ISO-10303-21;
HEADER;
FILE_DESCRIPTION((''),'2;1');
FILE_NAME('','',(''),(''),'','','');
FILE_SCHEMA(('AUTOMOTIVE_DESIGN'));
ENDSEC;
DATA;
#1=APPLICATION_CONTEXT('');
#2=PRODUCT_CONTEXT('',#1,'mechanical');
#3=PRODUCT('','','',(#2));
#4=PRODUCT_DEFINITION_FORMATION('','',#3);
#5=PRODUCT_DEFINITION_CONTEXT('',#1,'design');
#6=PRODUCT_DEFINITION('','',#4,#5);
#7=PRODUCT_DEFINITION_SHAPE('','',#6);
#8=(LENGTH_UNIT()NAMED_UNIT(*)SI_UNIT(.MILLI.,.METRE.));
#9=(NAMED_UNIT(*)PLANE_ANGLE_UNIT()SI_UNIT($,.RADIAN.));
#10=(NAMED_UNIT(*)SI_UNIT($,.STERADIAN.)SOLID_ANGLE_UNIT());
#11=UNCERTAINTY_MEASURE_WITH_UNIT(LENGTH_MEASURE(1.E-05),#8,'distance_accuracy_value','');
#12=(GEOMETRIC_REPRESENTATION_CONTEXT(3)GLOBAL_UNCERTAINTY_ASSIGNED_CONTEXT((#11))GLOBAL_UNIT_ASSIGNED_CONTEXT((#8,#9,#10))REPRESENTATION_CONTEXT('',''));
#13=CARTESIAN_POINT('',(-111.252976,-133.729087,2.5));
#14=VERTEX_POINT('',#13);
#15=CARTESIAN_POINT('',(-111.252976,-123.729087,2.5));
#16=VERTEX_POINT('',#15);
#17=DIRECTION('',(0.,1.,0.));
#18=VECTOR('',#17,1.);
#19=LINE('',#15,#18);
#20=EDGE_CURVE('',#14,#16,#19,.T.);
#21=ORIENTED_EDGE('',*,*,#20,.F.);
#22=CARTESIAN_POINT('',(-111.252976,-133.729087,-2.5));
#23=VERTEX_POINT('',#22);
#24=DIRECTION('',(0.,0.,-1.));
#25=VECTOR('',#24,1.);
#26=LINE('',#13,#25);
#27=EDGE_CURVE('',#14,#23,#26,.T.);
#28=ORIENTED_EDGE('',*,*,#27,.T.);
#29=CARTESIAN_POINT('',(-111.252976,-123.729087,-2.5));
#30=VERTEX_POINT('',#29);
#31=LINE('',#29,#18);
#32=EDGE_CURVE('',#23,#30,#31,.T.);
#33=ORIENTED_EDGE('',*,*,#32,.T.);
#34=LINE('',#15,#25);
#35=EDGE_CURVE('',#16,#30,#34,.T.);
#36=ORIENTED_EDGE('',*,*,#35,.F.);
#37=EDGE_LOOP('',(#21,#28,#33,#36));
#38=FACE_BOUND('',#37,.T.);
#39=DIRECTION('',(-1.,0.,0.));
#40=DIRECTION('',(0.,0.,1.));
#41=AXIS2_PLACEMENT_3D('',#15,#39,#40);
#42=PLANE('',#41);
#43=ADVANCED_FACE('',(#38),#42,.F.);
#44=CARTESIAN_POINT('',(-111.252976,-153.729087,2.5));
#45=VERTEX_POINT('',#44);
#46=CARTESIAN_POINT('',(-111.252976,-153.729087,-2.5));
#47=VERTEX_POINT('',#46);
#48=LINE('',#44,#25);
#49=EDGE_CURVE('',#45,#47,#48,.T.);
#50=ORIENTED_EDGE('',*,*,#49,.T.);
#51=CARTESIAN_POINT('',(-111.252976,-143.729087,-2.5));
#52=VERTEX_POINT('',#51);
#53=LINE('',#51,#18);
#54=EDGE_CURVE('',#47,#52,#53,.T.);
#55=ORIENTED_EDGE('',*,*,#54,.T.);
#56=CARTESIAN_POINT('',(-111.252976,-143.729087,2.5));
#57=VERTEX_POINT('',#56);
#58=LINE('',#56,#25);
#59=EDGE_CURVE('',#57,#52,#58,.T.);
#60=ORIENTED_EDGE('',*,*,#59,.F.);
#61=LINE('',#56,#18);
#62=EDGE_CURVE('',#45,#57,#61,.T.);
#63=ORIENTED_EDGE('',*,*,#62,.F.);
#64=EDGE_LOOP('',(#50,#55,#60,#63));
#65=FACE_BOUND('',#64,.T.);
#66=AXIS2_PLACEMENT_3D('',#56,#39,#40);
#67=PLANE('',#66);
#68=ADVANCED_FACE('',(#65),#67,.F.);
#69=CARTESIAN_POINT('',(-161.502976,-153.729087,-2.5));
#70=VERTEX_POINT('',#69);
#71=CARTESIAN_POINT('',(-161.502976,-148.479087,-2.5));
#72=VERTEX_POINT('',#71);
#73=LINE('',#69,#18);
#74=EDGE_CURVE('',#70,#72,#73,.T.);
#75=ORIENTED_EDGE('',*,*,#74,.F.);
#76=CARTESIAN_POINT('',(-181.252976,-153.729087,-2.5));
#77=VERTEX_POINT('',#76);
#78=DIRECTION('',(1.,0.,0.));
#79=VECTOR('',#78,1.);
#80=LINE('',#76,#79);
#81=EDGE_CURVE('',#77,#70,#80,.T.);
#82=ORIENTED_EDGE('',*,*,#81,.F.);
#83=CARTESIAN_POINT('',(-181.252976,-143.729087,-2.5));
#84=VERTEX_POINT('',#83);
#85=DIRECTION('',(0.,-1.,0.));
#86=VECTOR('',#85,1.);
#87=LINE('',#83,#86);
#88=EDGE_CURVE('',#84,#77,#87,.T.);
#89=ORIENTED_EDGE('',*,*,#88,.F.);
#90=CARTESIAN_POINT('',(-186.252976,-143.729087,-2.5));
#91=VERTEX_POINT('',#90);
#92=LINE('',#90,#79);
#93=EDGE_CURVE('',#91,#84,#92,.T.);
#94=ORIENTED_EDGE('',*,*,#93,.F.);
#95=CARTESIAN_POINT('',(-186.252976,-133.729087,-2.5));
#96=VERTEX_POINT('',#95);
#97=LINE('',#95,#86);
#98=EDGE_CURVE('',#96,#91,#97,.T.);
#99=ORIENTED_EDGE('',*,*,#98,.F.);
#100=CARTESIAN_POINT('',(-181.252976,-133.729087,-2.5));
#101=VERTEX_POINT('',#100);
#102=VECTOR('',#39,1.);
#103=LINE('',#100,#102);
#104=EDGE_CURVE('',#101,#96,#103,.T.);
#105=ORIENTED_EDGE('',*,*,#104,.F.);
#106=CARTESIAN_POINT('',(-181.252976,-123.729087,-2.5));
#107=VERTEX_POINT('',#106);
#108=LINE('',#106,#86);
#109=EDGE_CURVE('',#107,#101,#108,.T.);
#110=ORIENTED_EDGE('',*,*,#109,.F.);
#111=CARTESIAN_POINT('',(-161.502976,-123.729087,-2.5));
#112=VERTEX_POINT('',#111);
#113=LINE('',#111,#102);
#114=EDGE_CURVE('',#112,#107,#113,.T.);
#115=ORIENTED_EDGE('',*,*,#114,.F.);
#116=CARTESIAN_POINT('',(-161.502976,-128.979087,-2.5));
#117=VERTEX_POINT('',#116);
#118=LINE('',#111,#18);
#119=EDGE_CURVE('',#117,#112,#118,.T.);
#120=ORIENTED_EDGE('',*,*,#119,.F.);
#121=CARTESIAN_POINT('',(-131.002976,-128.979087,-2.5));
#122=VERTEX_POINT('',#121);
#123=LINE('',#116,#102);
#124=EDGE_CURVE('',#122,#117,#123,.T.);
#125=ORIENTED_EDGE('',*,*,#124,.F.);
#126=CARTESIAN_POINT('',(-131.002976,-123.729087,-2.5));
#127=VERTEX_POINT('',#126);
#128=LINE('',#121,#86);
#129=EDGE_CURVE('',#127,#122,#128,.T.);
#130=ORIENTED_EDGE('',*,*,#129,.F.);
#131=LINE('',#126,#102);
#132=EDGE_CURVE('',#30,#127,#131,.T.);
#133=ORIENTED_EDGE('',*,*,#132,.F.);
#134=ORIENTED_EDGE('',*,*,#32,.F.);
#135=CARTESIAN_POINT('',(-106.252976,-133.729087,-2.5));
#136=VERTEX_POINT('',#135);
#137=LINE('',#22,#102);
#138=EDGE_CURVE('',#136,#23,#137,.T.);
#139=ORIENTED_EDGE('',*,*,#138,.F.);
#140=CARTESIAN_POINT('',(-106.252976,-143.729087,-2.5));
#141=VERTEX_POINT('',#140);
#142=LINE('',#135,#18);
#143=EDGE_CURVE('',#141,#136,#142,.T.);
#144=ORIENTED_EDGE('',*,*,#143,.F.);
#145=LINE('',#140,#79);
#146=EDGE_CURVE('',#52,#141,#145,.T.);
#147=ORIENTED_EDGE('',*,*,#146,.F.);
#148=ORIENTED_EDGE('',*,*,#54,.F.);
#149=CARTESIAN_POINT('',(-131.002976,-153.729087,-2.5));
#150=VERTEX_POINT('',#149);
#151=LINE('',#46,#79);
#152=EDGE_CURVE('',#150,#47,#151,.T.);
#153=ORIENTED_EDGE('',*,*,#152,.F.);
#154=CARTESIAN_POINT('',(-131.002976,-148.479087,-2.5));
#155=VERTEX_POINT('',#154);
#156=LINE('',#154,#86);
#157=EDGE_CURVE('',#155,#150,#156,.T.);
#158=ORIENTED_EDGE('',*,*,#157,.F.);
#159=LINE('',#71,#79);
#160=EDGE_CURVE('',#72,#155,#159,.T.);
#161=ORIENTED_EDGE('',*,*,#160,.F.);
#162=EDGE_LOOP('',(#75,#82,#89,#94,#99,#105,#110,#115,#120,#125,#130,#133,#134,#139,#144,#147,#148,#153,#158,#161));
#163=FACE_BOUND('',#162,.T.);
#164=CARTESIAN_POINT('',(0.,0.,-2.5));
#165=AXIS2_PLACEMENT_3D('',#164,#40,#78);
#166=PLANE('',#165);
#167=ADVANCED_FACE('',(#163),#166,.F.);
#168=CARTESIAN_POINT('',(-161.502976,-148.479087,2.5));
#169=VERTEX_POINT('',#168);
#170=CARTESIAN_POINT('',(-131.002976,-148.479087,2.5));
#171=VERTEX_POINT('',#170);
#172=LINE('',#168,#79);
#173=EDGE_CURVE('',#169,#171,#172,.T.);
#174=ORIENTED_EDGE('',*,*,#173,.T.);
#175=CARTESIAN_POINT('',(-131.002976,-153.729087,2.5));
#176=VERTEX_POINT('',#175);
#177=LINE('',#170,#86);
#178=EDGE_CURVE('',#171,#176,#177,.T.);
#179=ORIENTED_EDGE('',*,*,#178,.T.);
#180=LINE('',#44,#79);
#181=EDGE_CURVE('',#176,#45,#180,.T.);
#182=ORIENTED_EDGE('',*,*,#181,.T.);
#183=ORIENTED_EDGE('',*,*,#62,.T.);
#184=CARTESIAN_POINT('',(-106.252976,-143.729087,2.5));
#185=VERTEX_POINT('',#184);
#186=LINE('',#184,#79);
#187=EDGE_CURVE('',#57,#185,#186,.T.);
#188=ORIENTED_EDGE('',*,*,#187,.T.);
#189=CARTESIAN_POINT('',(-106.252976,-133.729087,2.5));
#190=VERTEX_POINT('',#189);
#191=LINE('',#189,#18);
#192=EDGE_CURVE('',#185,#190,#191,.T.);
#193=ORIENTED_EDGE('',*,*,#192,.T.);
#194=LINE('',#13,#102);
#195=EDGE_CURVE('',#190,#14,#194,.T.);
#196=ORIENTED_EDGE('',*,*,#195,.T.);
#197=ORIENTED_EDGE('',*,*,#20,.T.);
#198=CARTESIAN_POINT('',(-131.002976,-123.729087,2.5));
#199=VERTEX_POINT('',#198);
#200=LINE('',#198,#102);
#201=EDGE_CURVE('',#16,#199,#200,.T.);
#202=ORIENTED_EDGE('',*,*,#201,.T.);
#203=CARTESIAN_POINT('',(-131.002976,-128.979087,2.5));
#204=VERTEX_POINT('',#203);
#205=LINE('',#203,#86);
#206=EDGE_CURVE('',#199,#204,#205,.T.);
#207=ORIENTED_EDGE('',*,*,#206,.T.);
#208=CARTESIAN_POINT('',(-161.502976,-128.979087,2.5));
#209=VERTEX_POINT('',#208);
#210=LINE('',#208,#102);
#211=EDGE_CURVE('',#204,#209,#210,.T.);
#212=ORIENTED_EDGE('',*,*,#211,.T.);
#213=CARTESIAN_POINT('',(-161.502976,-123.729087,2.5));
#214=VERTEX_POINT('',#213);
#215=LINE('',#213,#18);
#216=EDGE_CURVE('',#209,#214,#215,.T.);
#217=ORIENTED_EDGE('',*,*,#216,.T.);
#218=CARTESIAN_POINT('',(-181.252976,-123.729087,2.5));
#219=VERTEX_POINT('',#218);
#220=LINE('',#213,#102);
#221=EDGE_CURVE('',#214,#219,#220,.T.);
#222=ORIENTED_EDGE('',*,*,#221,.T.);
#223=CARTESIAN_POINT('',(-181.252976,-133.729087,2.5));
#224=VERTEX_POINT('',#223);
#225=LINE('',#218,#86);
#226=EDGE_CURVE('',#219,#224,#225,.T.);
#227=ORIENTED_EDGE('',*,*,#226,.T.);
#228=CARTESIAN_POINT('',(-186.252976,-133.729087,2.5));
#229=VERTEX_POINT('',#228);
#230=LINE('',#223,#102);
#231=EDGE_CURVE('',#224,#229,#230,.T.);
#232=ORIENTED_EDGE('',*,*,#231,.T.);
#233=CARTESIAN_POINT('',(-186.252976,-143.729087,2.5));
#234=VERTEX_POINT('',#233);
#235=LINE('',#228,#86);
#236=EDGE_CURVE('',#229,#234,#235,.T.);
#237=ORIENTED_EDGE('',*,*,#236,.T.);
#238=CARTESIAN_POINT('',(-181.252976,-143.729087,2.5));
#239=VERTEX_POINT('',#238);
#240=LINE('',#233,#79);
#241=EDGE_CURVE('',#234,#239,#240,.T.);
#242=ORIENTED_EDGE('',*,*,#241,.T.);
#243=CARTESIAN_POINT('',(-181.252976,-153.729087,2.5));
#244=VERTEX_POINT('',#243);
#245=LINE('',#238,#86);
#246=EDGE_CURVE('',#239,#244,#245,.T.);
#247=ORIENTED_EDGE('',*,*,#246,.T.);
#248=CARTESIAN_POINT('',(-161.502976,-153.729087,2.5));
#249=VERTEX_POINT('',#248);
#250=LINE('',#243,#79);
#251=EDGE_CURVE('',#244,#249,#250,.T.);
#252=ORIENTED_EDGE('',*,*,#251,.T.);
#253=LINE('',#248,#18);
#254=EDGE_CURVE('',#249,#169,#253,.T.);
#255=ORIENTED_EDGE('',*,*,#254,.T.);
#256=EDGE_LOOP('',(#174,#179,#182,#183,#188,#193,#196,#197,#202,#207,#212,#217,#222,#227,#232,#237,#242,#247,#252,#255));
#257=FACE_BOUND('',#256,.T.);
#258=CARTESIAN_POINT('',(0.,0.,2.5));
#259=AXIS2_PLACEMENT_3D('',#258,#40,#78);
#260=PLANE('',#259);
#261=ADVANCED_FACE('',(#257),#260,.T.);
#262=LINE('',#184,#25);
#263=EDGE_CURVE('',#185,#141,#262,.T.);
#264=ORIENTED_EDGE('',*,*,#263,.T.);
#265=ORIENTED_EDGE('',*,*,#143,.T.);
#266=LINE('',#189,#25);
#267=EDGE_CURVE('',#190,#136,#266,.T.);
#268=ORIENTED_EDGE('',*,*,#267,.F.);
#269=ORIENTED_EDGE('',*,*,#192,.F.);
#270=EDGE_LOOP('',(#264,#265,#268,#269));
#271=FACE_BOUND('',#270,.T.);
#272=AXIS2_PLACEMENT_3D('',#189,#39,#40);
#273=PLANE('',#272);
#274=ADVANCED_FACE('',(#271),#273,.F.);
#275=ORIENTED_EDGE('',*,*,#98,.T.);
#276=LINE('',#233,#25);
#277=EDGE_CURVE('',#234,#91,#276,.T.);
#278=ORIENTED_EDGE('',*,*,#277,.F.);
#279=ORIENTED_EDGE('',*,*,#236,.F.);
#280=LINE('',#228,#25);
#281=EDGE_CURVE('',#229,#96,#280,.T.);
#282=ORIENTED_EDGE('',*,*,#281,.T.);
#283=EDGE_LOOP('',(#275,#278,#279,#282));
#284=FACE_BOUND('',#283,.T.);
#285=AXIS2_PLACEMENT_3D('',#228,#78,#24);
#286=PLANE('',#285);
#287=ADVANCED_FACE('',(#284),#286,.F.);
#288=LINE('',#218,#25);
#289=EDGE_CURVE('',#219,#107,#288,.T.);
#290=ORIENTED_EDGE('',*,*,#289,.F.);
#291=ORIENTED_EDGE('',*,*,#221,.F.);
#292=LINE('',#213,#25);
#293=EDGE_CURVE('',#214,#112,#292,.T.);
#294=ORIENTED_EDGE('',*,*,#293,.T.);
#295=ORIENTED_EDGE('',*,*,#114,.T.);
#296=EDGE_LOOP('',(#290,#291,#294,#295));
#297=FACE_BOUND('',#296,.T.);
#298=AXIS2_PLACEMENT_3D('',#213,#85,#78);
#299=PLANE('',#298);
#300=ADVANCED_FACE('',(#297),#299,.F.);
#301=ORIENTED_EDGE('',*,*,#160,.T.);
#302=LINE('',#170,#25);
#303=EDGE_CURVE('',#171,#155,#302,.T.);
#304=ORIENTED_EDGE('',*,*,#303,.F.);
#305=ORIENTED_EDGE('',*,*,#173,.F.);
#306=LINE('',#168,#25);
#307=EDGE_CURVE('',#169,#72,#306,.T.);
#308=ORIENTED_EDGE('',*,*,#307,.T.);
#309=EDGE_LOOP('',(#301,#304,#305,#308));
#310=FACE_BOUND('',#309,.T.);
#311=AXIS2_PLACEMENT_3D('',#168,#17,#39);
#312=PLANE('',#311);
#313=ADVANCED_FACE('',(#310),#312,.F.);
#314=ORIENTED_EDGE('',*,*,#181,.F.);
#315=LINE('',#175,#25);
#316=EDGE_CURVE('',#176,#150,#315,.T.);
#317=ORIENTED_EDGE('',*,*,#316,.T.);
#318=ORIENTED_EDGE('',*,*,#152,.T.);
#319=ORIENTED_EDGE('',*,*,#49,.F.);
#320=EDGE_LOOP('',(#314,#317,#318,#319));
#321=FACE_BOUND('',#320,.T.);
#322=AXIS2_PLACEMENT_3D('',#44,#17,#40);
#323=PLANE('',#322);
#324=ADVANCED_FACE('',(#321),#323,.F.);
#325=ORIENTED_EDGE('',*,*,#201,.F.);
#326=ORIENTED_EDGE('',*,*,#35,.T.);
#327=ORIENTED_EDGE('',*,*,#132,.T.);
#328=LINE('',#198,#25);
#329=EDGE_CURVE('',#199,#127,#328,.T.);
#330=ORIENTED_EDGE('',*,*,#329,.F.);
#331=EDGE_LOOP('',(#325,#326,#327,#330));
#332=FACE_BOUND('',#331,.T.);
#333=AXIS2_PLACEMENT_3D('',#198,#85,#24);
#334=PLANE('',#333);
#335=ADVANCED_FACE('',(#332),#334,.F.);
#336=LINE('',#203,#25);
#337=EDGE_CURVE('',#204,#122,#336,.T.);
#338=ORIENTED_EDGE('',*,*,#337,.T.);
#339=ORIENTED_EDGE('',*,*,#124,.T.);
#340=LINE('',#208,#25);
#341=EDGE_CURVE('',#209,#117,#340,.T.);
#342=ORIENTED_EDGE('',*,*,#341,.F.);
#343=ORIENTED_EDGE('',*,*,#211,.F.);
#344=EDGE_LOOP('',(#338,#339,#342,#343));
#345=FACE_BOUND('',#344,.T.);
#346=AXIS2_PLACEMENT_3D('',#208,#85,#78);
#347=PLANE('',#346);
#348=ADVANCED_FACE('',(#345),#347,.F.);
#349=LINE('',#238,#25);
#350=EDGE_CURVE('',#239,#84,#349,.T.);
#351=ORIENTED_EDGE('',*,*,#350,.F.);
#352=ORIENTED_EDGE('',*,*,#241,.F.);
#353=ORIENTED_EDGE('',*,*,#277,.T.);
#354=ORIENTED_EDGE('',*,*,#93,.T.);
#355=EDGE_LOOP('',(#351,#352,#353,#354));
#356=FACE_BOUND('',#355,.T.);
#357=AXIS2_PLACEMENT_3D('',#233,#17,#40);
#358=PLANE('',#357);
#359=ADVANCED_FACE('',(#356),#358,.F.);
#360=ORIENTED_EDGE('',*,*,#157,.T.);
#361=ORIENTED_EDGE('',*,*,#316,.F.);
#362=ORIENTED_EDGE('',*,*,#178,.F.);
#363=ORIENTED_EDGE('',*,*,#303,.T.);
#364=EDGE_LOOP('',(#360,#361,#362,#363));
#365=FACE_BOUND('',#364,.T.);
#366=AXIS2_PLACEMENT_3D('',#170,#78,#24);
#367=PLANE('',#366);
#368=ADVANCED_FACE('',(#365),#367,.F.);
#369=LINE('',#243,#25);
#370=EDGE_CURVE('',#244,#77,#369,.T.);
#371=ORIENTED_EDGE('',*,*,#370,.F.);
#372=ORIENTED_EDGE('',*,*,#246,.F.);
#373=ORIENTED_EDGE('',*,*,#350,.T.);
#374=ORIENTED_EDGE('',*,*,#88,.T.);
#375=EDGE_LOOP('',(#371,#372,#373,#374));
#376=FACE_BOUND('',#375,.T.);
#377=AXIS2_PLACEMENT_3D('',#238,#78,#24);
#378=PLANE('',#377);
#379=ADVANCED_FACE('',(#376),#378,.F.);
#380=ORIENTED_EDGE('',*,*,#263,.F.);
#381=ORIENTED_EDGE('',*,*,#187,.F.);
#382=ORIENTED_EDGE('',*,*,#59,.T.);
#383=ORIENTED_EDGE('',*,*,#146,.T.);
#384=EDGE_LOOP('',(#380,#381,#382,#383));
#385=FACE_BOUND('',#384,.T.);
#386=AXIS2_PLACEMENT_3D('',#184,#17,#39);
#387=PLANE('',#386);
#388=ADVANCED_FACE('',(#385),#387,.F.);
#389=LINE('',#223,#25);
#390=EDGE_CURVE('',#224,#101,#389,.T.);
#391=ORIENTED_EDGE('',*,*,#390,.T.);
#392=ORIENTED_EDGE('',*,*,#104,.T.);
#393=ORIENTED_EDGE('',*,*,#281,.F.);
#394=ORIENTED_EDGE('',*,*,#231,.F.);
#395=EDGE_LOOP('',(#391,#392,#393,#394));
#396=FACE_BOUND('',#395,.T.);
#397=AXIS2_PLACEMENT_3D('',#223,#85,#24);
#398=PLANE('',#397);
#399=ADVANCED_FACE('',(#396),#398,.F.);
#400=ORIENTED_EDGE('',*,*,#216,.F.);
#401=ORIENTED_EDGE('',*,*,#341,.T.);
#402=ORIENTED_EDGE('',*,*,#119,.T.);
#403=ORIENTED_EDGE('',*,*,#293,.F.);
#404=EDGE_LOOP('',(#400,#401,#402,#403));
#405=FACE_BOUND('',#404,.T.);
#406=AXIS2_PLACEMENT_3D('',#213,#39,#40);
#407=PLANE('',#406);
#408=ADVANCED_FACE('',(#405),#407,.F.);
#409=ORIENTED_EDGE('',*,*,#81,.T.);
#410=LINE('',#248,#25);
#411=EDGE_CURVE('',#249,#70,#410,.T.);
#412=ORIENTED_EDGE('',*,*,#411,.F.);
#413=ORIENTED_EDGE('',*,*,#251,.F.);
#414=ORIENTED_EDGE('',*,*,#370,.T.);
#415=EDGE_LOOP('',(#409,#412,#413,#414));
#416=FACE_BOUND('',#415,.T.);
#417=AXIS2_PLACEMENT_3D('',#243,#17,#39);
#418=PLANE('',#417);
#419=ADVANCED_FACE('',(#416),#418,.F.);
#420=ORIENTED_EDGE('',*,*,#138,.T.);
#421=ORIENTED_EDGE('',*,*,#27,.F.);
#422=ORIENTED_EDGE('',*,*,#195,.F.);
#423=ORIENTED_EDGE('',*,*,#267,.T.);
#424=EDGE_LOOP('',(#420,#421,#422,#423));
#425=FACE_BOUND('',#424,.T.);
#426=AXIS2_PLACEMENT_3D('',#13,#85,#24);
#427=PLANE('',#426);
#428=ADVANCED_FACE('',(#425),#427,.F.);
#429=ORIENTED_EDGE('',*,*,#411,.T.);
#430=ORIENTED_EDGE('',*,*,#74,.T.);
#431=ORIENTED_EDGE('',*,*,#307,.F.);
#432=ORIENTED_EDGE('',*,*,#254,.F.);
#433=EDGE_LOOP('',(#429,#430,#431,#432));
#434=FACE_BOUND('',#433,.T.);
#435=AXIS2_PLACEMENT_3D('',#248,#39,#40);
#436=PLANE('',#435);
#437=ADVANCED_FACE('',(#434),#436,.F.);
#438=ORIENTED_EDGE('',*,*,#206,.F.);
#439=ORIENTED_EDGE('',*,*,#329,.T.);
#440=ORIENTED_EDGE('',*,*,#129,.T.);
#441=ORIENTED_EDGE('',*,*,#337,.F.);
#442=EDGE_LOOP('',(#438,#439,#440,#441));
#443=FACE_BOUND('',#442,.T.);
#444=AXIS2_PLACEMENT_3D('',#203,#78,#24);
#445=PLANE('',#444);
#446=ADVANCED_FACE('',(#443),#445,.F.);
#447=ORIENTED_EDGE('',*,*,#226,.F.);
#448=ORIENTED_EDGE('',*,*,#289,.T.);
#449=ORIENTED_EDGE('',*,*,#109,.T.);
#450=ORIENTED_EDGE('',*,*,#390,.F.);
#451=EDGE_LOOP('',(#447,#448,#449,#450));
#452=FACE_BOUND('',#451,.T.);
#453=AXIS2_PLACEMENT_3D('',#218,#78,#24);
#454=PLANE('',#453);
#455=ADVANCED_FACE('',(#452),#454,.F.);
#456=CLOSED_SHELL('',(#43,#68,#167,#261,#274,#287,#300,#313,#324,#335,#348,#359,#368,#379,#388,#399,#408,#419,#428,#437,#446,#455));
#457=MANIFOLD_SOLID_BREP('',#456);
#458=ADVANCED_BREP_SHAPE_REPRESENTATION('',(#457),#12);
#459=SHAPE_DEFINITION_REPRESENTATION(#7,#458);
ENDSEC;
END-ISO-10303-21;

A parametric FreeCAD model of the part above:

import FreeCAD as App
import Part
import Sketcher
from FreeCAD import Vector
Q = App.Units.Quantity


def add_polygon(sketch, points):
    """Adds a closed chain of lines whose ends are joined by coincident constraints."""
    first, n = sketch.GeometryCount, len(points)
    for a, b in zip(points, points[1:] + points[:1]):
        sketch.addGeometry(Part.LineSegment(App.Vector(*a, 0), App.Vector(*b, 0)), False)
    for i in range(n):
        sketch.addConstraint(Sketcher.Constraint("Coincident", first + i, 2, first + (i + 1) % n, 1))

doc = App.newDocument("Part")
body = doc.addObject("PartDesign::Body", "Body")

# Sketch on XY plane
sketch1 = body.newObject("Sketcher::SketchObject", "Sketch")
sketch1.AttachmentSupport = (doc.getObject("XY_Plane"), [""])
sketch1.MapMode = "FlatFace"
add_polygon(sketch1, [(-162, -129), (-162, -124), (-181, -124), (-181, -134), (-186, -134), (-186, -144), (-181, -144), (-181, -154), (-162, -154), (-162, -148), (-131, -148), (-131, -154), (-111, -154), (-111, -144), (-106, -144), (-106, -134), (-111, -134), (-111, -124), (-131, -124), (-131, -129)])  # lines 0-19
sketch1.addConstraint([
    Sketcher.Constraint("Vertical", 0),
    Sketcher.Constraint("Horizontal", 1),
    Sketcher.Constraint("Vertical", 2),
    Sketcher.Constraint("Horizontal", 3),
    Sketcher.Constraint("Vertical", 4),
    Sketcher.Constraint("Horizontal", 5),
    Sketcher.Constraint("Vertical", 6),
    Sketcher.Constraint("Horizontal", 7),
    Sketcher.Constraint("Vertical", 8),
    Sketcher.Constraint("Horizontal", 9),
    Sketcher.Constraint("Vertical", 10),
    Sketcher.Constraint("Horizontal", 11),
    Sketcher.Constraint("Vertical", 12),
    Sketcher.Constraint("Horizontal", 13),
    Sketcher.Constraint("Vertical", 14),
    Sketcher.Constraint("Horizontal", 15),
    Sketcher.Constraint("Vertical", 16),
    Sketcher.Constraint("Horizontal", 17),
    Sketcher.Constraint("Vertical", 18),
    Sketcher.Constraint("Horizontal", 19),
    Sketcher.Constraint("Horizontal", 7, 2, 10, 2),
    Sketcher.Constraint("Horizontal", 5, 2, 12, 2),
    Sketcher.Constraint("Horizontal", 3, 2, 14, 2),
    Sketcher.Constraint("Horizontal", 1, 2, 16, 2),
    Sketcher.Constraint("Vertical", 2, 2, 5, 2),
    Sketcher.Constraint("Vertical", 0, 2, 7, 2),
    Sketcher.Constraint("Vertical", 12, 2, 15, 2),
    Sketcher.Constraint("Vertical", 10, 2, 17, 2),
    Sketcher.Constraint("Equal", 7, 11),
    Sketcher.Constraint("Equal", 5, 13),
    Sketcher.Constraint("Equal", 2, 4),
    Sketcher.Constraint("Equal", 4, 6),
    Sketcher.Constraint("Equal", 0, 8),
    Sketcher.Constraint("DistanceX", 3, 2, 3, 1, Q("5 mm")),
    Sketcher.Constraint("DistanceY", 2, 2, 2, 1, Q("10 mm")),
    Sketcher.Constraint("DistanceX", 9, 1, 9, 2, Q("30.5 mm")),
    Sketcher.Constraint("DistanceX", 1, 2, 1, 1, Q("19.75 mm")),
    Sketcher.Constraint("DistanceY", 0, 1, 0, 2, Q("5.25 mm")),
    Sketcher.Constraint("DistanceX", 0, 2, -1, 1, Q("161.502976 mm")),
    Sketcher.Constraint("DistanceY", 0, 2, -1, 1, Q("123.729087 mm")),
])
pad1 = body.newObject("PartDesign::Pad", "Pad")
pad1.Profile = sketch1
pad1.Length = 5
pad1.Midplane = True

doc.recompute()
